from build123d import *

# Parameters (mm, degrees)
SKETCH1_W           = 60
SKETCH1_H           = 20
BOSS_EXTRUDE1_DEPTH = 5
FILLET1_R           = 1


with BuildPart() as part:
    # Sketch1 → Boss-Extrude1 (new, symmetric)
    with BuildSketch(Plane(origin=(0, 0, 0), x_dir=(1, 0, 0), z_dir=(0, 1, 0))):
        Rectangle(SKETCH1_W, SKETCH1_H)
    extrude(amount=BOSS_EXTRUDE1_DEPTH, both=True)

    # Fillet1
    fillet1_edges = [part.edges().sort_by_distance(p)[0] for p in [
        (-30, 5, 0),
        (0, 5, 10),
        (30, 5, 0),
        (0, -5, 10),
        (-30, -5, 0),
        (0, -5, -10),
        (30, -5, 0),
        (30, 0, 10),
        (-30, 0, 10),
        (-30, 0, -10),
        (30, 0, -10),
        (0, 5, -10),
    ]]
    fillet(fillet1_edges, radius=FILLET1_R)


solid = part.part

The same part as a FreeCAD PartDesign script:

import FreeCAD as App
import Part
import Sketcher
from FreeCAD import Vector
Q = App.Units.Quantity


def add_polygon(sketch, points):
    """Adds a closed chain of lines whose ends are joined by coincident constraints."""
    first, n = sketch.GeometryCount, len(points)
    for a, b in zip(points, points[1:] + points[:1]):
        sketch.addGeometry(Part.LineSegment(App.Vector(*a, 0), App.Vector(*b, 0)), False)
    for i in range(n):
        sketch.addConstraint(Sketcher.Constraint("Coincident", first + i, 2, first + (i + 1) % n, 1))

doc = App.newDocument("Part")
body = doc.addObject("PartDesign::Body", "Body")

# Sketch on XZ plane
sketch1 = body.newObject("Sketcher::SketchObject", "Sketch")
sketch1.AttachmentSupport = (doc.getObject("XZ_Plane"), [""])
sketch1.MapMode = "FlatFace"
add_polygon(sketch1, [(-30, -10), (-30, 10), (30, 10), (30, -10)])  # lines 0-3
sketch1.addConstraint(Sketcher.Constraint("Vertical", 0))
sketch1.addConstraint(Sketcher.Constraint("Horizontal", 1))
sketch1.addConstraint(Sketcher.Constraint("Vertical", 2))
sketch1.addConstraint(Sketcher.Constraint("Horizontal", 3))
sketch1.addConstraint(Sketcher.Constraint("Symmetric", 0, 2, 2, 2, -1, 1))
sketch1.addConstraint(Sketcher.Constraint("DistanceX", 1, 1, 1, 2, Q("60 mm")))
sketch1.addConstraint(Sketcher.Constraint("DistanceY", 0, 1, 0, 2, Q("20 mm")))
pad1 = body.newObject("PartDesign::Pad", "Pad")
pad1.Profile = sketch1
pad1.Length = 10
pad1.Midplane = True
doc.recompute()

fillet = body.newObject("PartDesign::Fillet", "Fillet")
fillet.Base = (pad1, ["Edge1"])
fillet.UseAllEdges = True
fillet.Radius = 1

doc.recompute()
